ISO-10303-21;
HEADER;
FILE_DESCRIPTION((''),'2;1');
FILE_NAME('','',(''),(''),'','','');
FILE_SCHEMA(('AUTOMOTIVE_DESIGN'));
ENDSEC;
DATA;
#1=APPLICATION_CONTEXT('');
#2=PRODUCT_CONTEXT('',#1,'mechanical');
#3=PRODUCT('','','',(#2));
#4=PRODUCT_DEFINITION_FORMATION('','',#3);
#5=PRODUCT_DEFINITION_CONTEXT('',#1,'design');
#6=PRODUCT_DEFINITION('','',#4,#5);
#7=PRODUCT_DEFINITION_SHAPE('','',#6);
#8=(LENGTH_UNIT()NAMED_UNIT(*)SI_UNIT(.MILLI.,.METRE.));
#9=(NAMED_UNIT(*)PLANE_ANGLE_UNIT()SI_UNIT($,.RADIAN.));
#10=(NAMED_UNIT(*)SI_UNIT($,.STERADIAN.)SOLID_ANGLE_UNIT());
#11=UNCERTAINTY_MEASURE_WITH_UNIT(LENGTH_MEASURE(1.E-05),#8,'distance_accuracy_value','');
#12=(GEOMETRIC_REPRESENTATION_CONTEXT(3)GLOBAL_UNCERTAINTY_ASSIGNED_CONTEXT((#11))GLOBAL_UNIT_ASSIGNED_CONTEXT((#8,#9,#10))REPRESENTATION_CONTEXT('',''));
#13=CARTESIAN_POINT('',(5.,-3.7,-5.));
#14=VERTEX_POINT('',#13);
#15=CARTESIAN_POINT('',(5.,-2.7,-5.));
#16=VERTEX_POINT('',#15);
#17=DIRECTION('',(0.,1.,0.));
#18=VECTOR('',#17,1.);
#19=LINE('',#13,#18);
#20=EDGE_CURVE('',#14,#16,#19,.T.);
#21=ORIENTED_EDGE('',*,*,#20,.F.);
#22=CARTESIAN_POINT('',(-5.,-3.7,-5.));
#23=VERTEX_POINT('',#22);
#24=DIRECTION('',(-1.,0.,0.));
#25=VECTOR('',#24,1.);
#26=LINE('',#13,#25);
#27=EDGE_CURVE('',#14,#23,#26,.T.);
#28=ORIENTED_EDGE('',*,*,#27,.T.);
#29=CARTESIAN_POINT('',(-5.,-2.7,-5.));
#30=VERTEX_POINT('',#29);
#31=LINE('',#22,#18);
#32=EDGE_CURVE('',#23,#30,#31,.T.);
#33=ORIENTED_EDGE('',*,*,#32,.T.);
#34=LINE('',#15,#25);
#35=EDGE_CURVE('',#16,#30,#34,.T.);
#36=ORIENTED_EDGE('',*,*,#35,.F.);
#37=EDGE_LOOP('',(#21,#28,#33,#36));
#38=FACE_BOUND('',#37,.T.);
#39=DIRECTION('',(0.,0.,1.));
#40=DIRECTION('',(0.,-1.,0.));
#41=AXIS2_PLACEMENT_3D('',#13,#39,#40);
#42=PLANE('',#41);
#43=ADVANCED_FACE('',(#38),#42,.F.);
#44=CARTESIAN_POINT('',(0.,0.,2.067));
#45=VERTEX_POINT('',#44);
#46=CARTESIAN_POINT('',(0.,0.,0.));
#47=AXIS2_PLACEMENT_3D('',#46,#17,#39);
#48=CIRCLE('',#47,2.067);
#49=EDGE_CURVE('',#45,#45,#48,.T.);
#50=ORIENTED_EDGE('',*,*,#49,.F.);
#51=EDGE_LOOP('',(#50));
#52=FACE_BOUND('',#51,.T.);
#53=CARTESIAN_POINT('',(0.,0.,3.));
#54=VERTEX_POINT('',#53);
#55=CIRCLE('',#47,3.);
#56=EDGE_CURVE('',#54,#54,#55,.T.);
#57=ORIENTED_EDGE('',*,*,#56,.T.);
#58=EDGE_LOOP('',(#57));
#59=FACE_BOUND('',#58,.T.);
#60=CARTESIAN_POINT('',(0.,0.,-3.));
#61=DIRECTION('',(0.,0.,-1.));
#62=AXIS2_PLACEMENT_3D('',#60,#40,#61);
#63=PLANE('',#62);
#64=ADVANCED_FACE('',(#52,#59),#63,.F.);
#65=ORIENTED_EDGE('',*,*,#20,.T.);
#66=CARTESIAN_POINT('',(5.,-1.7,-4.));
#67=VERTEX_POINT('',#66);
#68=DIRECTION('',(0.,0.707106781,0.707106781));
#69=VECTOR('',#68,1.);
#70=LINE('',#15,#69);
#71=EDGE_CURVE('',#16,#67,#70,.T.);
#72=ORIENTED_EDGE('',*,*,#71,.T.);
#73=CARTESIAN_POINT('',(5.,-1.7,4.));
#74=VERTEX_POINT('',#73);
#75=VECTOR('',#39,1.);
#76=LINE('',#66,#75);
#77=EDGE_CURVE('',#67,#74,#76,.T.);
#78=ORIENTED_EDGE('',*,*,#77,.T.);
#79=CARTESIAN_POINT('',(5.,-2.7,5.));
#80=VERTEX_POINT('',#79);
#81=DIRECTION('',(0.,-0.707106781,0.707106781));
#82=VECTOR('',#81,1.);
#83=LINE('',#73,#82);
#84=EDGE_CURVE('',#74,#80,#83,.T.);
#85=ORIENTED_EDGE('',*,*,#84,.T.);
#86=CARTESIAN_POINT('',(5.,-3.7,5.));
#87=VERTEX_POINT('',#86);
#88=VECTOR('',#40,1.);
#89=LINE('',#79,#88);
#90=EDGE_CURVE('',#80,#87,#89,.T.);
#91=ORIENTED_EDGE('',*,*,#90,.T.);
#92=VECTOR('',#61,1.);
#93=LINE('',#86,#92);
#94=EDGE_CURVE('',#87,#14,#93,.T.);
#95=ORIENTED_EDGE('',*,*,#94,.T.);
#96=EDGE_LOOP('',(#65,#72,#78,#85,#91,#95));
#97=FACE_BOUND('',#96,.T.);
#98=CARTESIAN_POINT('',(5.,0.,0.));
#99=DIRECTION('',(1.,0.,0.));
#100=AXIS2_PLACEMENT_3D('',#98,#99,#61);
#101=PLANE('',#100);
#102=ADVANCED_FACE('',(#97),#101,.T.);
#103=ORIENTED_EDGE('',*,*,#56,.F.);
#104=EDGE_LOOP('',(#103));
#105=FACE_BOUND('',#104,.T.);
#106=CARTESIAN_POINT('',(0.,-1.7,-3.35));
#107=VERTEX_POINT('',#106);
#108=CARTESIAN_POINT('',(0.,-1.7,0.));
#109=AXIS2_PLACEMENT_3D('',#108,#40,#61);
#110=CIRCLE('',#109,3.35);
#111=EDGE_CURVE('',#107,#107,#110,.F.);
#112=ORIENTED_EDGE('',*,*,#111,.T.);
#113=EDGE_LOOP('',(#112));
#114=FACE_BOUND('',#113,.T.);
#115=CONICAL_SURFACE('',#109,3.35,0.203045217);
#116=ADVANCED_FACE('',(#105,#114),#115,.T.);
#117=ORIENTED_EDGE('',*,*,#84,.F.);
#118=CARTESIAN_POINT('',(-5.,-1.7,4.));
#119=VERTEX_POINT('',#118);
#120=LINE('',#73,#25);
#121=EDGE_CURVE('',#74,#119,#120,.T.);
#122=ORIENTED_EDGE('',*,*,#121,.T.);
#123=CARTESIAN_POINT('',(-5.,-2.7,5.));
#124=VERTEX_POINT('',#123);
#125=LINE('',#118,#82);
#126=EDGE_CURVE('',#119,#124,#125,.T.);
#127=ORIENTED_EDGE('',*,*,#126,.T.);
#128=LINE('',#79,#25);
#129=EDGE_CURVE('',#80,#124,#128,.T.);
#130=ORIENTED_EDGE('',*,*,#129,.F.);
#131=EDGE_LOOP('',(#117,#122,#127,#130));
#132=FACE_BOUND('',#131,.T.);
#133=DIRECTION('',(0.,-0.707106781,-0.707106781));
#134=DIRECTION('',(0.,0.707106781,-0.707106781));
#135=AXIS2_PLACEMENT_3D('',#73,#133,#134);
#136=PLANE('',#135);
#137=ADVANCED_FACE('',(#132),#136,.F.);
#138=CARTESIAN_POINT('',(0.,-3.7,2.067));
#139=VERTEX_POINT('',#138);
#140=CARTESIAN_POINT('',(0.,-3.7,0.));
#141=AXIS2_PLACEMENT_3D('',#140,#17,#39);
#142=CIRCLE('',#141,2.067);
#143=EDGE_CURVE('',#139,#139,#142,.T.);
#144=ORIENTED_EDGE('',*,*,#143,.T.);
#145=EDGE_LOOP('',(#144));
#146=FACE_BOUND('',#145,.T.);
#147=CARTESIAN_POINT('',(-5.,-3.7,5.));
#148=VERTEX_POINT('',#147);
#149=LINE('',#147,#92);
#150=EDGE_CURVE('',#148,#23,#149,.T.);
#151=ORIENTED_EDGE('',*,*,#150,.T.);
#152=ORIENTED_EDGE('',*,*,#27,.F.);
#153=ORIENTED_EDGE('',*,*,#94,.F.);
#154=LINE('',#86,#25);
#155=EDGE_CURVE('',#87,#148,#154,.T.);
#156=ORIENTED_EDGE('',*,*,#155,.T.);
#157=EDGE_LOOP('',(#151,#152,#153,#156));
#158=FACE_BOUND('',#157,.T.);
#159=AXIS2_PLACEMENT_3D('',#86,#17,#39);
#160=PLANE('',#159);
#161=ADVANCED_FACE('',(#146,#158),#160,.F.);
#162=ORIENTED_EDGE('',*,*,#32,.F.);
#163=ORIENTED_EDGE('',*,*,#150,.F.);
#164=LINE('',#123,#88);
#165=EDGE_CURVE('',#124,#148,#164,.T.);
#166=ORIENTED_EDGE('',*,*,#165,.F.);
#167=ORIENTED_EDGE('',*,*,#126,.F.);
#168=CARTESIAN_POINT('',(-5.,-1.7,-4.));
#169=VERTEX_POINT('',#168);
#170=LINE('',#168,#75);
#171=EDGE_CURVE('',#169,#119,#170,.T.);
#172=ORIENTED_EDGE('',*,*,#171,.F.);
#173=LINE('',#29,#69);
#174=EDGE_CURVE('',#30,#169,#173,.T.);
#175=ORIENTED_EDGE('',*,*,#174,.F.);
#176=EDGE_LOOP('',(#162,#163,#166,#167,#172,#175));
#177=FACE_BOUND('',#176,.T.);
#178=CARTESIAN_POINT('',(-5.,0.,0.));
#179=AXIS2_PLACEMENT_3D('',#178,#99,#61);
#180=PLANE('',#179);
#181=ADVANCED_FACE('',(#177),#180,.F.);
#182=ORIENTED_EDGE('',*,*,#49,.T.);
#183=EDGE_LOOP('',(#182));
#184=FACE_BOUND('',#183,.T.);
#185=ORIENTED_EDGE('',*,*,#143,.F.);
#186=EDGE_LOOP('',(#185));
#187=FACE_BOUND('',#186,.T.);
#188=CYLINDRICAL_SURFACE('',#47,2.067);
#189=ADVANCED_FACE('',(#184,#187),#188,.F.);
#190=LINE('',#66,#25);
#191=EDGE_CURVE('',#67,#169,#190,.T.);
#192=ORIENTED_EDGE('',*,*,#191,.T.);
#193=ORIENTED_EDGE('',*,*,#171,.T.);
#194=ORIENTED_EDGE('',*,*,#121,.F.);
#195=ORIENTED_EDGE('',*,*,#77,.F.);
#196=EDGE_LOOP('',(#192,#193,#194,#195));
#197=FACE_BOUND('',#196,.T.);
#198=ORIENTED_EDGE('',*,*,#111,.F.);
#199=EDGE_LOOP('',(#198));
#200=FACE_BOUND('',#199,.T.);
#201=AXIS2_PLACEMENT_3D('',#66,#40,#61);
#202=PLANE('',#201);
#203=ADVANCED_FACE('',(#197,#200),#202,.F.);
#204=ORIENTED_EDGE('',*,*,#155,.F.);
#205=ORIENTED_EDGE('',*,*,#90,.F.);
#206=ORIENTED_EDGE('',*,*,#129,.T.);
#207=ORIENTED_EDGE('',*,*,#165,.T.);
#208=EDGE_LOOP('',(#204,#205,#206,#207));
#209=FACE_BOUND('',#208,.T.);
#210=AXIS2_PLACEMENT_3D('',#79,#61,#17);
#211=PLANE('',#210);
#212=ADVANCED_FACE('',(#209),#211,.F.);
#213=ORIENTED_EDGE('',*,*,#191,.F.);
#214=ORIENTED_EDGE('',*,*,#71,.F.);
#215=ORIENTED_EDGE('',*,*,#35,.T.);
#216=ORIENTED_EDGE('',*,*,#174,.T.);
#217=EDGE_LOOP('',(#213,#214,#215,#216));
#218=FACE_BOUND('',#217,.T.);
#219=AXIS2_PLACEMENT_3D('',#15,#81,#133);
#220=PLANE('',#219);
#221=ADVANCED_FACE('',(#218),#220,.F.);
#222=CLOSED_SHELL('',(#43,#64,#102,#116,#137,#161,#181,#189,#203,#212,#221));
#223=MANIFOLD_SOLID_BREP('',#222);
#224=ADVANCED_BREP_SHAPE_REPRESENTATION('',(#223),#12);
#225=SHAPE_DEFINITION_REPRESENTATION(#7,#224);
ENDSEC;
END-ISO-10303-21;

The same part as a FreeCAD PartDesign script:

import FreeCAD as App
import Part
import Sketcher
Q = App.Units.Quantity

doc = App.newDocument("Part")
body = doc.addObject("PartDesign::Body", "Body")

# Sketch on YZ plane
sketch1 = body.newObject("Sketcher::SketchObject", "Sketch")
sketch1.AttachmentSupport = (doc.getObject("YZ_Plane"), [""])
sketch1.MapMode = "FlatFace"
sketch1.AttachmentOffset = App.Placement(App.Vector(0, 0, -5), App.Rotation())
sketch1.addGeometry(Part.LineSegment(App.Vector(-1.7, -4, 0), App.Vector(-1.7, 4, 0)), False)
sketch1.addGeometry(Part.LineSegment(App.Vector(-1.7, 4, 0), App.Vector(-2.7, 5, 0)), False)
sketch1.addGeometry(Part.LineSegment(App.Vector(-2.7, 5, 0), App.Vector(-3.7, 5, 0)), False)
sketch1.addGeometry(Part.LineSegment(App.Vector(-3.7, 5, 0), App.Vector(-3.7, -5, 0)), False)
sketch1.addGeometry(Part.LineSegment(App.Vector(-3.7, -5, 0), App.Vector(-2.7, -5, 0)), False)
sketch1.addGeometry(Part.LineSegment(App.Vector(-2.7, -5, 0), App.Vector(-1.7, -4, 0)), False)
sketch1.addConstraint(Sketcher.Constraint("Coincident", 0, 2, 1, 1))
sketch1.addConstraint(Sketcher.Constraint("Coincident", 1, 2, 2, 1))
sketch1.addConstraint(Sketcher.Constraint("Coincident", 2, 2, 3, 1))
sketch1.addConstraint(Sketcher.Constraint("Coincident", 3, 2, 4, 1))
sketch1.addConstraint(Sketcher.Constraint("Coincident", 4, 2, 5, 1))
sketch1.addConstraint(Sketcher.Constraint("Coincident", 5, 2, 0, 1))
sketch1.addConstraint(Sketcher.Constraint("Vertical", 0))
sketch1.addConstraint(Sketcher.Constraint("Horizontal", 2))
sketch1.addConstraint(Sketcher.Constraint("Vertical", 3))
sketch1.addConstraint(Sketcher.Constraint("Horizontal", 4))
sketch1.addConstraint(Sketcher.Constraint("Symmetric", 1, 2, 4, 2, -1))
sketch1.addConstraint(Sketcher.Constraint("Perpendicular", 1, 5))
sketch1.addConstraint(Sketcher.Constraint("Equal", 1, 5))
sketch1.addConstraint(Sketcher.Constraint("DistanceX", 2, 2, 2, 1, Q("1 mm")))
sketch1.addConstraint(Sketcher.Constraint("DistanceY", 0, 1, 0, 2, Q("8 mm")))
sketch1.addConstraint(Sketcher.Constraint("DistanceY", 3, 2, 3, 1, Q("10 mm")))
sketch1.addConstraint(Sketcher.Constraint("DistanceX", 0, 2, -1, 1, Q("1.7 mm")))
pad1 = body.newObject("PartDesign::Pad", "Pad")
pad1.Profile = sketch1
pad1.Length = 10

# Sketch on YZ plane
sketch2 = body.newObject("Sketcher::SketchObject", "Sketch001")
sketch2.AttachmentSupport = (doc.getObject("YZ_Plane"), [""])
sketch2.MapMode = "FlatFace"
sketch2.addGeometry(Part.LineSegment(App.Vector(-1.7, -3.35, 0), App.Vector(0, -3, 0)), False)
sketch2.addGeometry(Part.LineSegment(App.Vector(0, -3, 0), App.Vector(0, 0, 0)), False)
sketch2.addGeometry(Part.LineSegment(App.Vector(0, 0, 0), App.Vector(-1.7, 0, 0)), False)
sketch2.addGeometry(Part.LineSegment(App.Vector(-1.7, 0, 0), App.Vector(-1.7, -3.35, 0)), False)
sketch2.addConstraint(Sketcher.Constraint("Coincident", 0, 2, 1, 1))
sketch2.addConstraint(Sketcher.Constraint("Coincident", 1, 2, 2, 1))
sketch2.addConstraint(Sketcher.Constraint("Coincident", 2, 2, 3, 1))
sketch2.addConstraint(Sketcher.Constraint("Coincident", 3, 2, 0, 1))
sketch2.addConstraint(Sketcher.Constraint("Vertical", 1))
sketch2.addConstraint(Sketcher.Constraint("Horizontal", 2))
sketch2.addConstraint(Sketcher.Constraint("Vertical", 3))
sketch2.addConstraint(Sketcher.Constraint("Coincident", 1, 2, -1, 1))
sketch2.addConstraint(Sketcher.Constraint("DistanceY", 1, 1, 1, 2, Q("3 mm")))
sketch2.addConstraint(Sketcher.Constraint("DistanceX", 2, 2, 2, 1, Q("1.7 mm")))
sketch2.addConstraint(Sketcher.Constraint("DistanceY", 3, 2, 3, 1, Q("3.35 mm")))
revolution = body.newObject("PartDesign::Revolution", "Revolution")
revolution.Profile = sketch2
revolution.ReferenceAxis = (sketch2, ["H_Axis"])
revolution.Angle = 360

# Sketch on XZ plane
sketch3 = body.newObject("Sketcher::SketchObject", "Sketch002")
sketch3.AttachmentSupport = (doc.getObject("XZ_Plane"), [""])
sketch3.MapMode = "FlatFace"
sketch3.addGeometry(Part.Circle(App.Vector(0, 0, 0), App.Vector(0, 0, 1), 2.067), False)
sketch3.addConstraint(Sketcher.Constraint("Coincident", 0, 3, -1, 1))
sketch3.addConstraint(Sketcher.Constraint("Diameter", 0, Q("4.134 mm")))
doc.recompute()
hole = body.newObject("PartDesign::Hole", "Hole")
hole.Profile = sketch3
hole.ThreadType = "None"
hole.Diameter = 4.134
hole.DepthType = "ThroughAll"
hole.Reversed = True

doc.recompute()
